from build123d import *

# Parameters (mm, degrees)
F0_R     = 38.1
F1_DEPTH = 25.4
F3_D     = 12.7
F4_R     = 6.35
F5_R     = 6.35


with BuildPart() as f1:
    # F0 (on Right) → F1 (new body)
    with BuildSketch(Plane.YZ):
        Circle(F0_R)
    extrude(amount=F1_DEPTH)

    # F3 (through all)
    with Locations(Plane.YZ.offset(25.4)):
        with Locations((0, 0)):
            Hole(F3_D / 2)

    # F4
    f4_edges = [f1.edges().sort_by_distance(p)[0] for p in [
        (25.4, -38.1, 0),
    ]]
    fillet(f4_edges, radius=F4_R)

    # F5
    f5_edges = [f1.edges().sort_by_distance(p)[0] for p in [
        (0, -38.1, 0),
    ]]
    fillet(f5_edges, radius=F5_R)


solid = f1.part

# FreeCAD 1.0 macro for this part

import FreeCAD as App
import Part
import Sketcher
from FreeCAD import Vector
Q = App.Units.Quantity


def edges_at(feature, points):
    """Names of the edges that pass closest to the given points."""
    edges = feature.Shape.Edges
    near = lambda p: min(range(len(edges)), key=lambda i: edges[i].distToShape(Part.Vertex(*p))[0])
    return sorted({f"Edge{near(p) + 1}" for p in points})

doc = App.newDocument("Part")
params = doc.addObject("Spreadsheet::Sheet", "Params")
for row, (alias, value) in enumerate([
    ("sketch1_diameter", "3 in"),
    ("pad1_length", "1 in"),
    ("sketch2_diameter", "0.5 in"),
    ("hole_diameter", "0.5 in"),
    ("fillet_radius", "0.25 in"),
    ("fillet2_radius", "0.25 in"),
], start=1):
    params.set(f"A{row}", alias)
    params.set(f"B{row}", "=" + value)
    params.setAlias(f"B{row}", alias)

body = doc.addObject("PartDesign::Body", "Body")

# Sketch on YZ plane
sketch1 = doc.addObject("Sketcher::SketchObject", "Sketch")
body.addObject(sketch1)
sketch1.AttachmentSupport = (doc.YZ_Plane, [""])
sketch1.MapMode = "FlatFace"
sketch1.addGeometry(Part.Circle(Vector(0, 0, 0), Vector(0, 0, 1), 38), False)
sketch1.addConstraint(Sketcher.Constraint("Coincident", 0, 3, -1, 1))
sketch1.addConstraint(Sketcher.Constraint("Diameter", 0, Q("3 in")))
sketch1.setExpression("Constraints[1]", "Params.sketch1_diameter")
pad1 = doc.addObject("PartDesign::Pad", "Pad")
body.addObject(pad1)
pad1.Profile = sketch1
pad1.setExpression("Length", "Params.pad1_length")

# Sketch on YZ plane
sketch2 = doc.addObject("Sketcher::SketchObject", "Sketch001")
body.addObject(sketch2)
sketch2.AttachmentSupport = (doc.YZ_Plane, [""])
sketch2.MapMode = "FlatFace"
sketch2.AttachmentOffset = App.Placement(Vector(0, 0, 1 * 25.4), App.Rotation())
sketch2.addGeometry(Part.Circle(Vector(0, 0, 0), Vector(0, 0, 1), 6), False)
sketch2.addConstraint(Sketcher.Constraint("Coincident", 0, 3, -1, 1))
sketch2.addConstraint(Sketcher.Constraint("Diameter", 0, Q("0.5 in")))
sketch2.setExpression("Constraints[1]", "Params.sketch2_diameter")
doc.recompute()
hole = doc.addObject("PartDesign::Hole", "Hole")
body.addObject(hole)
hole.Profile = sketch2
hole.ThreadType = "None"
hole.setExpression("Diameter", "Params.hole_diameter")
hole.DepthType = "ThroughAll"
doc.recompute()

fillet = doc.addObject("PartDesign::Fillet", "Fillet")
body.addObject(fillet)
fillet.Base = (hole, edges_at(hole, [(25.4, -38.1, 0)]))
fillet.setExpression("Radius", "Params.fillet_radius")
doc.recompute()

fillet2 = doc.addObject("PartDesign::Fillet", "Fillet001")
body.addObject(fillet2)
fillet2.Base = (fillet, edges_at(fillet, [(0, -38.1, 0)]))
fillet2.setExpression("Radius", "Params.fillet2_radius")

doc.recompute()
